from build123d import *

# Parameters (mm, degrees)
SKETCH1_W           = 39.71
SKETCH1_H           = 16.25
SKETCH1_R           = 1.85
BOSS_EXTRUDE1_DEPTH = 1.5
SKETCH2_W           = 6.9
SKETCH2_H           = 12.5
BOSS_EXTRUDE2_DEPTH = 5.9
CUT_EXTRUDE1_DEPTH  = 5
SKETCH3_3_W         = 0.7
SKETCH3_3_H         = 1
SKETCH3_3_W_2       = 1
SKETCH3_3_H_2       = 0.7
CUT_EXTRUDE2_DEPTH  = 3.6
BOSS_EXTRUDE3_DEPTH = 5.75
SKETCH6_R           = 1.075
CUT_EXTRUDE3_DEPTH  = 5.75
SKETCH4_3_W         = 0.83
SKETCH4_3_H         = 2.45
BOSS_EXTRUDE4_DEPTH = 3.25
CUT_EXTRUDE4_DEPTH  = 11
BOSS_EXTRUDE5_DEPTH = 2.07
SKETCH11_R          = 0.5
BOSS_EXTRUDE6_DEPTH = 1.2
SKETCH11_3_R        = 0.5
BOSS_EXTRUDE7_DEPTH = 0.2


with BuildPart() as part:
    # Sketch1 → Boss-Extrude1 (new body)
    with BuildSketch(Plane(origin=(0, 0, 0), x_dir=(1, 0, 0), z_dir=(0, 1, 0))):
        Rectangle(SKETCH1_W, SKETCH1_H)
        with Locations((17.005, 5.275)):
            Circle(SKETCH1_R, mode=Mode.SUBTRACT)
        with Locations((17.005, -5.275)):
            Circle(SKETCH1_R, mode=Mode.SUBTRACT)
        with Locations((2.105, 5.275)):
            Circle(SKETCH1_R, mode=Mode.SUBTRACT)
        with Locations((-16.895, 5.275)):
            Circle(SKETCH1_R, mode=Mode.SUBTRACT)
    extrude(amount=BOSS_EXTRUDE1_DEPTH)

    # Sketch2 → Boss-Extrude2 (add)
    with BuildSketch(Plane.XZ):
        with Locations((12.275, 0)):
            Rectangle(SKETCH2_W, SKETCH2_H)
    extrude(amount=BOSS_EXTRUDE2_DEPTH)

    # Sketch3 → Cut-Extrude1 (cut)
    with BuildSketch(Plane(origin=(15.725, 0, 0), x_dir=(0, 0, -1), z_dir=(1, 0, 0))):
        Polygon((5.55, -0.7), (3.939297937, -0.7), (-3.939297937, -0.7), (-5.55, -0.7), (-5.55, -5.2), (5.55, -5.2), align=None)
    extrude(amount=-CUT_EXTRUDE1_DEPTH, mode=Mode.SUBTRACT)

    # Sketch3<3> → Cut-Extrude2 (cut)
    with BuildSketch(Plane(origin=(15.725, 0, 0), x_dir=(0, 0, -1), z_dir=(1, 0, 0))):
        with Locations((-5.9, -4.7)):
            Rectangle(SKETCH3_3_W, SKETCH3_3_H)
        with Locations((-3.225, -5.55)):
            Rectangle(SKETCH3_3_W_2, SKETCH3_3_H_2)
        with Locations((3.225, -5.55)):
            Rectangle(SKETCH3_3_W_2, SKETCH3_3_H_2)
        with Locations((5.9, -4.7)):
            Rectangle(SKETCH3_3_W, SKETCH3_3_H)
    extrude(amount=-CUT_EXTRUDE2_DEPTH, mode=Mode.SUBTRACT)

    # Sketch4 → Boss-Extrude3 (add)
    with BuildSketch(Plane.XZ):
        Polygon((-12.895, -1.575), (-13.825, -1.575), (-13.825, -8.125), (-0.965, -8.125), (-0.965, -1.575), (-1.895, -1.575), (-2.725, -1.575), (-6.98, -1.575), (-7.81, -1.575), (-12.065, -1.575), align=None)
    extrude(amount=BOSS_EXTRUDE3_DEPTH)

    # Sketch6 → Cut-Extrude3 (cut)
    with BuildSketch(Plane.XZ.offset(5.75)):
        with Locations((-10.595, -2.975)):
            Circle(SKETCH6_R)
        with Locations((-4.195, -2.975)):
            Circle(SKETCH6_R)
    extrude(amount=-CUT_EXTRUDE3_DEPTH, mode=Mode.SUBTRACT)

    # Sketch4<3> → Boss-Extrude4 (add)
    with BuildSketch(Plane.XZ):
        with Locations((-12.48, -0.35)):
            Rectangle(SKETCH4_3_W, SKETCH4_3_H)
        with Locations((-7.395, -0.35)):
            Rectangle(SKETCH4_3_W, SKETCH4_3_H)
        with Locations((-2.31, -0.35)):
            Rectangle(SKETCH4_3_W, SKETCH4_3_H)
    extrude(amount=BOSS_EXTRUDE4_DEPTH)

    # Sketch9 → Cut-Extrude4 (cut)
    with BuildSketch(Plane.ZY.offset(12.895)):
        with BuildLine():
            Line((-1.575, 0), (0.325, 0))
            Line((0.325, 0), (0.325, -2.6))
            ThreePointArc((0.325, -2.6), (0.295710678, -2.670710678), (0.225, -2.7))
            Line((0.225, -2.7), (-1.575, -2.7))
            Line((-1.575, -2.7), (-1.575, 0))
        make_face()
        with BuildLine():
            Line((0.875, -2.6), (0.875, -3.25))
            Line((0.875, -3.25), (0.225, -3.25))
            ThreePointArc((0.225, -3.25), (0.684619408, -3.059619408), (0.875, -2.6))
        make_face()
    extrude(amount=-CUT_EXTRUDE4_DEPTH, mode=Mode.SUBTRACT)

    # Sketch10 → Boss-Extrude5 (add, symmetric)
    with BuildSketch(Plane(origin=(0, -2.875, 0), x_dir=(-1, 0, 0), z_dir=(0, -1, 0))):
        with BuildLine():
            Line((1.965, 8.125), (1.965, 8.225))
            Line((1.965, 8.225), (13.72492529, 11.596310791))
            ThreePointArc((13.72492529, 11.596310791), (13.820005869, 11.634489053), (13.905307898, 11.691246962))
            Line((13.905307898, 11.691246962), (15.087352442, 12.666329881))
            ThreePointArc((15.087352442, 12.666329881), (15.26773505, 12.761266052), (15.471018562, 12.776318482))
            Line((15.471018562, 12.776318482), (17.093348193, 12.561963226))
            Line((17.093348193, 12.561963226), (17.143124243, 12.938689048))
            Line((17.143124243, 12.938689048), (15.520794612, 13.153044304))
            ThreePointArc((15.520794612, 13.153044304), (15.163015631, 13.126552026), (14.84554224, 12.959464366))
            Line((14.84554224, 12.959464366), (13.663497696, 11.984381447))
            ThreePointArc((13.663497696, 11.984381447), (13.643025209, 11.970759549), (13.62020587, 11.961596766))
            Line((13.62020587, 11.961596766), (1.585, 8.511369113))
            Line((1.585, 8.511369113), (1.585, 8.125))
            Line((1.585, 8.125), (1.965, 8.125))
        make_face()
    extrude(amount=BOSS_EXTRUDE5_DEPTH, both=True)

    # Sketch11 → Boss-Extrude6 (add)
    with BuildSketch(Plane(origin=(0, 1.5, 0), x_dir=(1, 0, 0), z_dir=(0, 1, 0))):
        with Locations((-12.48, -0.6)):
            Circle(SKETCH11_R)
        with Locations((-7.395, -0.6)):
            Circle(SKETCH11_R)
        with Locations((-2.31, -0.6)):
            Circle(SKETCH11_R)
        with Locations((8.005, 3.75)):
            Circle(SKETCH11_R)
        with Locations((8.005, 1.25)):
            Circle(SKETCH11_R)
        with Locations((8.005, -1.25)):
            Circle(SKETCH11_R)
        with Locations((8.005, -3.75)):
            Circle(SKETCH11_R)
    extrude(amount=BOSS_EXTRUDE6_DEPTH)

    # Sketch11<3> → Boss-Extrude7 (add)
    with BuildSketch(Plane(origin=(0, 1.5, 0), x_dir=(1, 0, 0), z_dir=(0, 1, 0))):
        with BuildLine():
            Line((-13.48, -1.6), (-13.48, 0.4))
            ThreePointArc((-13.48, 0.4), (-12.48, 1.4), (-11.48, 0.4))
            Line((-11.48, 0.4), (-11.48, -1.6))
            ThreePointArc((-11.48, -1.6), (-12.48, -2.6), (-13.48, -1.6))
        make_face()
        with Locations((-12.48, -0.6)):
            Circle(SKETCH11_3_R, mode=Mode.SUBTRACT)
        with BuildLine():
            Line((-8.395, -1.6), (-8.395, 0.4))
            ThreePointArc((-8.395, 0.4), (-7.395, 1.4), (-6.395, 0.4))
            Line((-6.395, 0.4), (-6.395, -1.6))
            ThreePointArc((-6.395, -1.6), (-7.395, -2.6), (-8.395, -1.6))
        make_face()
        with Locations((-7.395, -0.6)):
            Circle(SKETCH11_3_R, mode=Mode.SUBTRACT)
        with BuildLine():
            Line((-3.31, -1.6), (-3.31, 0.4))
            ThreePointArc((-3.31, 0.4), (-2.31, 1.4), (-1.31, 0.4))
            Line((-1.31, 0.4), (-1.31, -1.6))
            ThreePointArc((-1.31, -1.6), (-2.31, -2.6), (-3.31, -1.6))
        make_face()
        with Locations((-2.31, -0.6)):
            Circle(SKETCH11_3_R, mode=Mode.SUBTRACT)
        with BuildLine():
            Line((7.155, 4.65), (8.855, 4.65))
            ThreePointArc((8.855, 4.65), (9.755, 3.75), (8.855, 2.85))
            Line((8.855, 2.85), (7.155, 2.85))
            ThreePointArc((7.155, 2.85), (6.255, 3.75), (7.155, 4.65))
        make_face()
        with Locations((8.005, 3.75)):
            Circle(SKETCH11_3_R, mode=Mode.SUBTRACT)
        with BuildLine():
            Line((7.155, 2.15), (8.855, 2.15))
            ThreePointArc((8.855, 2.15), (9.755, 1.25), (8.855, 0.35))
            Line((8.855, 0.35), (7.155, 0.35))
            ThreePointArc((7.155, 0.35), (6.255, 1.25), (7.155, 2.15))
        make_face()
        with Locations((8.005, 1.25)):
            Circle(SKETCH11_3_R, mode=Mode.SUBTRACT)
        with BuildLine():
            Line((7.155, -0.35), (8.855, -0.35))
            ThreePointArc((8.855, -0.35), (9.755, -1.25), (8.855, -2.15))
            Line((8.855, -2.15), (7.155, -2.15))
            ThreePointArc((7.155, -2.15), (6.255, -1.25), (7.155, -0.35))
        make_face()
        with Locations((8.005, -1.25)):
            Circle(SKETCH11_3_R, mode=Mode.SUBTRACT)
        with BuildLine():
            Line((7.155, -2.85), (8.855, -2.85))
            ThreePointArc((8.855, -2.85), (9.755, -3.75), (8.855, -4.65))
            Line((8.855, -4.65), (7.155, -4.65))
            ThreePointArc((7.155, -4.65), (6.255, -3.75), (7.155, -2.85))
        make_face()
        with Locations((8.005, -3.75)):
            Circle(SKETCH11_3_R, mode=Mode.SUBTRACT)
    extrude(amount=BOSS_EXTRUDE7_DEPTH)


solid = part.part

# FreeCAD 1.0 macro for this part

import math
import FreeCAD as App
import Part
import Sketcher
from FreeCAD import Vector
Q = App.Units.Quantity

doc = App.newDocument("Part")
body = doc.addObject("PartDesign::Body", "Body")

sketch1 = doc.addObject("Sketcher::SketchObject", "Sketch")
body.addObject(sketch1)
sketch1.AttachmentSupport = (doc.XZ_Plane, [""])
sketch1.MapMode = "FlatFace"
sketch1.addGeometry(Part.LineSegment(Vector(-19.855, -8.125, 0), Vector(-19.855, 8.125, 0)), False)
sketch1.addGeometry(Part.LineSegment(Vector(-19.855, 8.125, 0), Vector(19.855, 8.125, 0)), False)
sketch1.addGeometry(Part.LineSegment(Vector(19.855, 8.125, 0), Vector(19.855, -8.125, 0)), False)
sketch1.addGeometry(Part.LineSegment(Vector(19.855, -8.125, 0), Vector(-19.855, -8.125, 0)), False)
sketch1.addGeometry(Part.Circle(Vector(17.005, 5.275, 0), Vector(0, 0, 1), 1.85), False)
sketch1.addGeometry(Part.Circle(Vector(-16.895, -5.275, 0), Vector(0, 0, 1), 1.85), False)
sketch1.addGeometry(Part.Circle(Vector(2.105, -5.275, 0), Vector(0, 0, 1), 1.85), False)
sketch1.addGeometry(Part.Circle(Vector(17.005, -5.275, 0), Vector(0, 0, 1), 1.85), False)
sketch1.addConstraint(Sketcher.Constraint("Coincident", 0, 2, 1, 1))
sketch1.addConstraint(Sketcher.Constraint("Coincident", 1, 2, 2, 1))
sketch1.addConstraint(Sketcher.Constraint("Coincident", 2, 2, 3, 1))
sketch1.addConstraint(Sketcher.Constraint("Coincident", 3, 2, 0, 1))
sketch1.addConstraint(Sketcher.Constraint("Vertical", 0))
sketch1.addConstraint(Sketcher.Constraint("Horizontal", 1))
sketch1.addConstraint(Sketcher.Constraint("Vertical", 2))
sketch1.addConstraint(Sketcher.Constraint("Horizontal", 3))
sketch1.addConstraint(Sketcher.Constraint("Equal", 4, 5))
sketch1.addConstraint(Sketcher.Constraint("Equal", 5, 6))
sketch1.addConstraint(Sketcher.Constraint("Equal", 6, 7))
sketch1.addConstraint(Sketcher.Constraint("Symmetric", 0, 2, 2, 2, -1, 1))
sketch1.addConstraint(Sketcher.Constraint("Symmetric", 4, 3, 7, 3, -1))
sketch1.addConstraint(Sketcher.Constraint("Horizontal", 5, 3, 6, 3))
sketch1.addConstraint(Sketcher.Constraint("Horizontal", 6, 3, 7, 3))
sketch1.addConstraint(Sketcher.Constraint("Diameter", 4, Q("3.7 mm")))
sketch1.addConstraint(Sketcher.Constraint("DistanceX", 5, 3, 6, 3, Q("19 mm")))
sketch1.addConstraint(Sketcher.Constraint("DistanceX", 1, 1, 1, 2, Q("39.71 mm")))
sketch1.addConstraint(Sketcher.Constraint("DistanceY", 0, 1, 0, 2, Q("16.25 mm")))
sketch1.addConstraint(Sketcher.Constraint("DistanceX", 5, 3, 4, 3, Q("33.9 mm")))
sketch1.addConstraint(Sketcher.Constraint("DistanceY", 5, 3, 0, 2, Q("13.4 mm")))
sketch1.addConstraint(Sketcher.Constraint("DistanceX", 0, 2, 5, 3, Q("2.96 mm")))
pad1 = doc.addObject("PartDesign::Pad", "Pad")
body.addObject(pad1)
pad1.Profile = sketch1
pad1.Length = 1.5
pad1.Reversed = True

sketch2 = doc.addObject("Sketcher::SketchObject", "Sketch001")
body.addObject(sketch2)
sketch2.AttachmentSupport = (doc.XZ_Plane, [""])
sketch2.MapMode = "FlatFace"
sketch2.addGeometry(Part.LineSegment(Vector(8.825, 6.25, 0), Vector(8.825, -6.25, 0)), False)
sketch2.addGeometry(Part.LineSegment(Vector(8.825, -6.25, 0), Vector(15.725, -6.25, 0)), False)
sketch2.addGeometry(Part.LineSegment(Vector(15.725, -6.25, 0), Vector(15.725, 6.25, 0)), False)
sketch2.addGeometry(Part.LineSegment(Vector(15.725, 6.25, 0), Vector(8.825, 6.25, 0)), False)
sketch2.addConstraint(Sketcher.Constraint("Coincident", 0, 2, 1, 1))
sketch2.addConstraint(Sketcher.Constraint("Coincident", 1, 2, 2, 1))
sketch2.addConstraint(Sketcher.Constraint("Coincident", 2, 2, 3, 1))
sketch2.addConstraint(Sketcher.Constraint("Coincident", 3, 2, 0, 1))
sketch2.addConstraint(Sketcher.Constraint("Vertical", 0))
sketch2.addConstraint(Sketcher.Constraint("Horizontal", 1))
sketch2.addConstraint(Sketcher.Constraint("Vertical", 2))
sketch2.addConstraint(Sketcher.Constraint("Horizontal", 3))
sketch2.addConstraint(Sketcher.Constraint("DistanceX", 1, 1, 1, 2, Q("6.9 mm")))
sketch2.addConstraint(Sketcher.Constraint("DistanceY", 0, 2, 0, 1, Q("12.5 mm")))
sketch2.addConstraint(Sketcher.Constraint("DistanceY", 0, 2, -1, 1, Q("6.25 mm")))
sketch2.addConstraint(Sketcher.Constraint("DistanceX", -1, 1, 0, 2, Q("8.825 mm")))
pad2 = doc.addObject("PartDesign::Pad", "Pad001")
body.addObject(pad2)
pad2.Profile = sketch2
pad2.Length = 5.9

sketch3 = doc.addObject("Sketcher::SketchObject", "Sketch002")
body.addObject(sketch3)
sketch3.AttachmentSupport = (doc.YZ_Plane, [""])
sketch3.MapMode = "FlatFace"
sketch3.AttachmentOffset = App.Placement(Vector(0, 0, 15.725), App.Rotation())
sketch3.addGeometry(Part.LineSegment(Vector(-0.7, -5.55, 0), Vector(-0.7, 5.55, 0)), False)
sketch3.addGeometry(Part.LineSegment(Vector(-0.7, 5.55, 0), Vector(-5.2, 5.55, 0)), False)
sketch3.addGeometry(Part.LineSegment(Vector(-5.2, 5.55, 0), Vector(-5.2, -5.55, 0)), False)
sketch3.addGeometry(Part.LineSegment(Vector(-5.2, -5.55, 0), Vector(-0.7, -5.55, 0)), False)
sketch3.addConstraint(Sketcher.Constraint("Coincident", 0, 2, 1, 1))
sketch3.addConstraint(Sketcher.Constraint("Coincident", 1, 2, 2, 1))
sketch3.addConstraint(Sketcher.Constraint("Coincident", 2, 2, 3, 1))
sketch3.addConstraint(Sketcher.Constraint("Coincident", 3, 2, 0, 1))
sketch3.addConstraint(Sketcher.Constraint("Vertical", 0))
sketch3.addConstraint(Sketcher.Constraint("Horizontal", 1))
sketch3.addConstraint(Sketcher.Constraint("Vertical", 2))
sketch3.addConstraint(Sketcher.Constraint("Horizontal", 3))
sketch3.addConstraint(Sketcher.Constraint("DistanceX", 1, 2, 1, 1, Q("4.5 mm")))
sketch3.addConstraint(Sketcher.Constraint("DistanceY", 0, 1, 0, 2, Q("11.1 mm")))
sketch3.addConstraint(Sketcher.Constraint("DistanceX", 0, 2, -1, 1, Q("0.7 mm")))
sketch3.addConstraint(Sketcher.Constraint("DistanceY", -1, 1, 0, 2, Q("5.55 mm")))
pocket1 = doc.addObject("PartDesign::Pocket", "Pocket")
body.addObject(pocket1)
pocket1.Profile = sketch3
pocket1.Length = 5

sketch4 = doc.addObject("Sketcher::SketchObject", "Sketch003")
body.addObject(sketch4)
sketch4.AttachmentSupport = (doc.YZ_Plane, [""])
sketch4.MapMode = "FlatFace"
sketch4.AttachmentOffset = App.Placement(Vector(0, 0, 15.725), App.Rotation())
sketch4.addGeometry(Part.LineSegment(Vector(-4.2, 6.25, 0), Vector(-5.2, 6.25, 0)), False)
sketch4.addGeometry(Part.LineSegment(Vector(-5.2, 6.25, 0), Vector(-5.2, 5.55, 0)), False)
sketch4.addGeometry(Part.LineSegment(Vector(-5.2, 5.55, 0), Vector(-4.2, 5.55, 0)), False)
sketch4.addGeometry(Part.LineSegment(Vector(-4.2, 5.55, 0), Vector(-4.2, 6.25, 0)), False)
sketch4.addGeometry(Part.LineSegment(Vector(-5.2, 3.725, 0), Vector(-5.9, 3.725, 0)), False)
sketch4.addGeometry(Part.LineSegment(Vector(-5.9, 3.725, 0), Vector(-5.9, 2.725, 0)), False)
sketch4.addGeometry(Part.LineSegment(Vector(-5.9, 2.725, 0), Vector(-5.2, 2.725, 0)), False)
sketch4.addGeometry(Part.LineSegment(Vector(-5.2, 2.725, 0), Vector(-5.2, 3.725, 0)), False)
sketch4.addGeometry(Part.LineSegment(Vector(-5.2, -2.725, 0), Vector(-5.9, -2.725, 0)), False)
sketch4.addGeometry(Part.LineSegment(Vector(-5.9, -2.725, 0), Vector(-5.9, -3.725, 0)), False)
sketch4.addGeometry(Part.LineSegment(Vector(-5.9, -3.725, 0), Vector(-5.2, -3.725, 0)), False)
sketch4.addGeometry(Part.LineSegment(Vector(-5.2, -3.725, 0), Vector(-5.2, -2.725, 0)), False)
sketch4.addGeometry(Part.LineSegment(Vector(-4.2, -5.55, 0), Vector(-5.2, -5.55, 0)), False)
sketch4.addGeometry(Part.LineSegment(Vector(-5.2, -5.55, 0), Vector(-5.2, -6.25, 0)), False)
sketch4.addGeometry(Part.LineSegment(Vector(-5.2, -6.25, 0), Vector(-4.2, -6.25, 0)), False)
sketch4.addGeometry(Part.LineSegment(Vector(-4.2, -6.25, 0), Vector(-4.2, -5.55, 0)), False)
sketch4.addConstraint(Sketcher.Constraint("Coincident", 0, 2, 1, 1))
sketch4.addConstraint(Sketcher.Constraint("Coincident", 1, 2, 2, 1))
sketch4.addConstraint(Sketcher.Constraint("Coincident", 2, 2, 3, 1))
sketch4.addConstraint(Sketcher.Constraint("Coincident", 3, 2, 0, 1))
sketch4.addConstraint(Sketcher.Constraint("Coincident", 4, 2, 5, 1))
sketch4.addConstraint(Sketcher.Constraint("Coincident", 5, 2, 6, 1))
sketch4.addConstraint(Sketcher.Constraint("Coincident", 6, 2, 7, 1))
sketch4.addConstraint(Sketcher.Constraint("Coincident", 7, 2, 4, 1))
sketch4.addConstraint(Sketcher.Constraint("Coincident", 8, 2, 9, 1))
sketch4.addConstraint(Sketcher.Constraint("Coincident", 9, 2, 10, 1))
sketch4.addConstraint(Sketcher.Constraint("Coincident", 10, 2, 11, 1))
sketch4.addConstraint(Sketcher.Constraint("Coincident", 11, 2, 8, 1))
sketch4.addConstraint(Sketcher.Constraint("Coincident", 12, 2, 13, 1))
sketch4.addConstraint(Sketcher.Constraint("Coincident", 13, 2, 14, 1))
sketch4.addConstraint(Sketcher.Constraint("Coincident", 14, 2, 15, 1))
sketch4.addConstraint(Sketcher.Constraint("Coincident", 15, 2, 12, 1))
sketch4.addConstraint(Sketcher.Constraint("Horizontal", 0))
sketch4.addConstraint(Sketcher.Constraint("Vertical", 1))
sketch4.addConstraint(Sketcher.Constraint("Horizontal", 2))
sketch4.addConstraint(Sketcher.Constraint("Vertical", 3))
sketch4.addConstraint(Sketcher.Constraint("Horizontal", 4))
sketch4.addConstraint(Sketcher.Constraint("Vertical", 5))
sketch4.addConstraint(Sketcher.Constraint("Horizontal", 6))
sketch4.addConstraint(Sketcher.Constraint("Vertical", 7))
sketch4.addConstraint(Sketcher.Constraint("Horizontal", 8))
sketch4.addConstraint(Sketcher.Constraint("Vertical", 9))
sketch4.addConstraint(Sketcher.Constraint("Horizontal", 10))
sketch4.addConstraint(Sketcher.Constraint("Vertical", 11))
sketch4.addConstraint(Sketcher.Constraint("Horizontal", 12))
sketch4.addConstraint(Sketcher.Constraint("Vertical", 13))
sketch4.addConstraint(Sketcher.Constraint("Horizontal", 14))
sketch4.addConstraint(Sketcher.Constraint("Vertical", 15))
sketch4.addConstraint(Sketcher.Constraint("Symmetric", 5, 2, 8, 2, -1))
sketch4.addConstraint(Sketcher.Constraint("Symmetric", 7, 2, 10, 2, -1))
sketch4.addConstraint(Sketcher.Constraint("Symmetric", 1, 2, 12, 2, -1))
sketch4.addConstraint(Sketcher.Constraint("Symmetric", 3, 2, 14, 2, -1))
sketch4.addConstraint(Sketcher.Constraint("Vertical", 1, 2, 6, 2))
sketch4.addConstraint(Sketcher.Constraint("Equal", 10, 1))
sketch4.addConstraint(Sketcher.Constraint("Equal", 14, 5))
sketch4.addConstraint(Sketcher.Constraint("DistanceX", 0, 2, 0, 1, Q("1 mm")))
sketch4.addConstraint(Sketcher.Constraint("DistanceX", 4, 2, 4, 1, Q("0.7 mm")))
sketch4.addConstraint(Sketcher.Constraint("DistanceX", 0, 2, -1, 1, Q("5.2 mm")))
sketch4.addConstraint(Sketcher.Constraint("DistanceY", -1, 1, 0, 2, Q("6.25 mm")))
sketch4.addConstraint(Sketcher.Constraint("DistanceY", 8, 2, 5, 2, Q("5.45 mm")))
pocket2 = doc.addObject("PartDesign::Pocket", "Pocket001")
body.addObject(pocket2)
pocket2.Profile = sketch4
pocket2.Length = 3.6

sketch5 = doc.addObject("Sketcher::SketchObject", "Sketch004")
body.addObject(sketch5)
sketch5.AttachmentSupport = (doc.XZ_Plane, [""])
sketch5.MapMode = "FlatFace"
sketch5.addGeometry(Part.LineSegment(Vector(-13.825, -1.575, 0), Vector(-13.825, -8.125, 0)), False)
sketch5.addGeometry(Part.LineSegment(Vector(-13.825, -8.125, 0), Vector(-0.965, -8.125, 0)), False)
sketch5.addGeometry(Part.LineSegment(Vector(-0.965, -8.125, 0), Vector(-0.965, -1.575, 0)), False)
sketch5.addGeometry(Part.LineSegment(Vector(-0.965, -1.575, 0), Vector(-13.825, -1.575, 0)), False)
sketch5.addConstraint(Sketcher.Constraint("Coincident", 0, 2, 1, 1))
sketch5.addConstraint(Sketcher.Constraint("Coincident", 1, 2, 2, 1))
sketch5.addConstraint(Sketcher.Constraint("Coincident", 2, 2, 3, 1))
sketch5.addConstraint(Sketcher.Constraint("Coincident", 3, 2, 0, 1))
sketch5.addConstraint(Sketcher.Constraint("Vertical", 0))
sketch5.addConstraint(Sketcher.Constraint("Horizontal", 1))
sketch5.addConstraint(Sketcher.Constraint("Vertical", 2))
sketch5.addConstraint(Sketcher.Constraint("Horizontal", 3))
sketch5.addConstraint(Sketcher.Constraint("DistanceX", 1, 1, 1, 2, Q("12.86 mm")))
sketch5.addConstraint(Sketcher.Constraint("DistanceY", 0, 2, 0, 1, Q("6.55 mm")))
sketch5.addConstraint(Sketcher.Constraint("DistanceX", 0, 2, -1, 1, Q("13.825 mm")))
sketch5.addConstraint(Sketcher.Constraint("DistanceY", 0, 2, -1, 1, Q("8.125 mm")))
pad3 = doc.addObject("PartDesign::Pad", "Pad002")
body.addObject(pad3)
pad3.Profile = sketch5
pad3.Length = 5.75

sketch6 = doc.addObject("Sketcher::SketchObject", "Sketch005")
body.addObject(sketch6)
sketch6.AttachmentSupport = (doc.XZ_Plane, [""])
sketch6.MapMode = "FlatFace"
sketch6.AttachmentOffset = App.Placement(Vector(0, 0, 5.75), App.Rotation())
sketch6.addGeometry(Part.Circle(Vector(-10.595, -2.975, 0), Vector(0, 0, 1), 1.075), False)
sketch6.addGeometry(Part.Circle(Vector(-4.195, -2.975, 0), Vector(0, 0, 1), 1.075), False)
sketch6.addConstraint(Sketcher.Constraint("Equal", 0, 1))
sketch6.addConstraint(Sketcher.Constraint("Horizontal", 0, 3, 1, 3))
sketch6.addConstraint(Sketcher.Constraint("Diameter", 0, Q("2.15 mm")))
sketch6.addConstraint(Sketcher.Constraint("DistanceX", 0, 3, 1, 3, Q("6.4 mm")))
sketch6.addConstraint(Sketcher.Constraint("DistanceX", 0, 3, -1, 1, Q("10.595 mm")))
sketch6.addConstraint(Sketcher.Constraint("DistanceY", 0, 3, -1, 1, Q("2.975 mm")))
pocket3 = doc.addObject("PartDesign::Pocket", "Pocket002")
body.addObject(pocket3)
pocket3.Profile = sketch6
pocket3.Length = 5.75

sketch7 = doc.addObject("Sketcher::SketchObject", "Sketch006")
body.addObject(sketch7)
sketch7.AttachmentSupport = (doc.XZ_Plane, [""])
sketch7.MapMode = "FlatFace"
sketch7.addGeometry(Part.LineSegment(Vector(-12.895, 0.875, 0), Vector(-12.895, -1.575, 0)), False)
sketch7.addGeometry(Part.LineSegment(Vector(-12.895, -1.575, 0), Vector(-12.065, -1.575, 0)), False)
sketch7.addGeometry(Part.LineSegment(Vector(-12.065, -1.575, 0), Vector(-12.065, 0.875, 0)), False)
sketch7.addGeometry(Part.LineSegment(Vector(-12.065, 0.875, 0), Vector(-12.895, 0.875, 0)), False)
sketch7.addGeometry(Part.LineSegment(Vector(-7.81, 0.875, 0), Vector(-7.81, -1.575, 0)), False)
sketch7.addGeometry(Part.LineSegment(Vector(-7.81, -1.575, 0), Vector(-6.98, -1.575, 0)), False)
sketch7.addGeometry(Part.LineSegment(Vector(-6.98, -1.575, 0), Vector(-6.98, 0.875, 0)), False)
sketch7.addGeometry(Part.LineSegment(Vector(-6.98, 0.875, 0), Vector(-7.81, 0.875, 0)), False)
sketch7.addGeometry(Part.LineSegment(Vector(-2.725, 0.875, 0), Vector(-2.725, -1.575, 0)), False)
sketch7.addGeometry(Part.LineSegment(Vector(-2.725, -1.575, 0), Vector(-1.895, -1.575, 0)), False)
sketch7.addGeometry(Part.LineSegment(Vector(-1.895, -1.575, 0), Vector(-1.895, 0.875, 0)), False)
sketch7.addGeometry(Part.LineSegment(Vector(-1.895, 0.875, 0), Vector(-2.725, 0.875, 0)), False)
sketch7.addConstraint(Sketcher.Constraint("Coincident", 0, 2, 1, 1))
sketch7.addConstraint(Sketcher.Constraint("Coincident", 1, 2, 2, 1))
sketch7.addConstraint(Sketcher.Constraint("Coincident", 2, 2, 3, 1))
sketch7.addConstraint(Sketcher.Constraint("Coincident", 3, 2, 0, 1))
sketch7.addConstraint(Sketcher.Constraint("Coincident", 4, 2, 5, 1))
sketch7.addConstraint(Sketcher.Constraint("Coincident", 5, 2, 6, 1))
sketch7.addConstraint(Sketcher.Constraint("Coincident", 6, 2, 7, 1))
sketch7.addConstraint(Sketcher.Constraint("Coincident", 7, 2, 4, 1))
sketch7.addConstraint(Sketcher.Constraint("Coincident", 8, 2, 9, 1))
sketch7.addConstraint(Sketcher.Constraint("Coincident", 9, 2, 10, 1))
sketch7.addConstraint(Sketcher.Constraint("Coincident", 10, 2, 11, 1))
sketch7.addConstraint(Sketcher.Constraint("Coincident", 11, 2, 8, 1))
sketch7.addConstraint(Sketcher.Constraint("Vertical", 0))
sketch7.addConstraint(Sketcher.Constraint("Horizontal", 1))
sketch7.addConstraint(Sketcher.Constraint("Vertical", 2))
sketch7.addConstraint(Sketcher.Constraint("Horizontal", 3))
sketch7.addConstraint(Sketcher.Constraint("Vertical", 4))
sketch7.addConstraint(Sketcher.Constraint("Horizontal", 5))
sketch7.addConstraint(Sketcher.Constraint("Vertical", 6))
sketch7.addConstraint(Sketcher.Constraint("Horizontal", 7))
sketch7.addConstraint(Sketcher.Constraint("Vertical", 8))
sketch7.addConstraint(Sketcher.Constraint("Horizontal", 9))
sketch7.addConstraint(Sketcher.Constraint("Vertical", 10))
sketch7.addConstraint(Sketcher.Constraint("Horizontal", 11))
sketch7.addConstraint(Sketcher.Constraint("Horizontal", 1, 2, 4, 2))
sketch7.addConstraint(Sketcher.Constraint("Horizontal", 3, 2, 6, 2))
sketch7.addConstraint(Sketcher.Constraint("Horizontal", 5, 2, 8, 2))
sketch7.addConstraint(Sketcher.Constraint("Horizontal", 7, 2, 10, 2))
sketch7.addConstraint(Sketcher.Constraint("Equal", 3, 5))
sketch7.addConstraint(Sketcher.Constraint("Equal", 7, 9))
sketch7.addConstraint(Sketcher.Constraint("DistanceX", 1, 1, 1, 2, Q("0.83 mm")))
sketch7.addConstraint(Sketcher.Constraint("DistanceY", 0, 2, 0, 1, Q("2.45 mm")))
sketch7.addConstraint(Sketcher.Constraint("DistanceX", 4, 2, -1, 1, Q("7.81 mm")))
sketch7.addConstraint(Sketcher.Constraint("DistanceX", 1, 2, 8, 2, Q("9.34 mm")))
sketch7.addConstraint(Sketcher.Constraint("DistanceX", 0, 2, -1, 1, Q("12.895 mm")))
sketch7.addConstraint(Sketcher.Constraint("DistanceY", 0, 2, -1, 1, Q("1.575 mm")))
pad4 = doc.addObject("PartDesign::Pad", "Pad003")
body.addObject(pad4)
pad4.Profile = sketch7
pad4.Length = 3.25

sketch8 = doc.addObject("Sketcher::SketchObject", "Sketch007")
body.addObject(sketch8)
sketch8.AttachmentSupport = (doc.YZ_Plane, [""])
sketch8.MapMode = "FlatFace"
sketch8.AttachmentOffset = App.Placement(Vector(0, 0, -12.895), App.Rotation())
sketch8.addGeometry(Part.LineSegment(Vector(0, 0.325, 0), Vector(0, -1.575, 0)), False)
sketch8.addGeometry(Part.LineSegment(Vector(0, -1.575, 0), Vector(-2.7, -1.575, 0)), False)
sketch8.addGeometry(Part.LineSegment(Vector(-2.7, -1.575, 0), Vector(-2.7, 0.225, 0)), False)
sketch8.addGeometry(Part.ArcOfCircle(Part.Circle(Vector(-2.6, 0.225, 0), Vector(0, 0, 1), 0.1), math.radians(90), math.radians(180)), False)
sketch8.addGeometry(Part.LineSegment(Vector(-2.6, 0.325, 0), Vector(0, 0.325, 0)), False)
sketch8.addGeometry(Part.LineSegment(Vector(-3.25, 0.875, 0), Vector(-2.6, 0.875, 0)), False)
sketch8.addGeometry(Part.ArcOfCircle(Part.Circle(Vector(-2.6, 0.225, 0), Vector(0, 0, 1), 0.65), math.radians(90), math.radians(180)), False)
sketch8.addGeometry(Part.LineSegment(Vector(-3.25, 0.225, 0), Vector(-3.25, 0.875, 0)), False)
sketch8.addConstraint(Sketcher.Constraint("Coincident", 0, 2, 1, 1))
sketch8.addConstraint(Sketcher.Constraint("Coincident", 1, 2, 2, 1))
sketch8.addConstraint(Sketcher.Constraint("Tangent", 2, 2, 3, 2))
sketch8.addConstraint(Sketcher.Constraint("Tangent", 3, 1, 4, 1))
sketch8.addConstraint(Sketcher.Constraint("Coincident", 4, 2, 0, 1))
sketch8.addConstraint(Sketcher.Constraint("Tangent", 5, 2, 6, 1))
sketch8.addConstraint(Sketcher.Constraint("Tangent", 6, 2, 7, 1))
sketch8.addConstraint(Sketcher.Constraint("Coincident", 7, 2, 5, 1))
sketch8.addConstraint(Sketcher.Constraint("Vertical", 0))
sketch8.addConstraint(Sketcher.Constraint("Horizontal", 1))
sketch8.addConstraint(Sketcher.Constraint("Vertical", 2))
sketch8.addConstraint(Sketcher.Constraint("Horizontal", 4))
sketch8.addConstraint(Sketcher.Constraint("Horizontal", 5))
sketch8.addConstraint(Sketcher.Constraint("Vertical", 7))
sketch8.addConstraint(Sketcher.Constraint("Coincident", 6, 3, 3, 3))
sketch8.addConstraint(Sketcher.Constraint("PointOnObject", 0, 2, -2))
sketch8.addConstraint(Sketcher.Constraint("Radius", 3, Q("0.1 mm")))
sketch8.addConstraint(Sketcher.Constraint("Radius", 6, Q("0.65 mm")))
sketch8.addConstraint(Sketcher.Constraint("DistanceX", 1, 2, 1, 1, Q("2.7 mm")))
sketch8.addConstraint(Sketcher.Constraint("DistanceY", 0, 2, 0, 1, Q("1.9 mm")))
sketch8.addConstraint(Sketcher.Constraint("DistanceY", -1, 1, 3, 3, Q("0.225 mm")))
pocket4 = doc.addObject("PartDesign::Pocket", "Pocket003")
body.addObject(pocket4)
pocket4.Profile = sketch8
pocket4.Length = 11
pocket4.Reversed = True

sketch9 = doc.addObject("Sketcher::SketchObject", "Sketch008")
body.addObject(sketch9)
sketch9.AttachmentSupport = (doc.XZ_Plane, [""])
sketch9.MapMode = "FlatFace"
sketch9.AttachmentOffset = App.Placement(Vector(0, 0, 2.875), App.Rotation())
sketch9.addGeometry(Part.LineSegment(Vector(-1.965, -8.125, 0), Vector(-1.965, -8.225, 0)), False)
sketch9.addGeometry(Part.LineSegment(Vector(-1.965, -8.225, 0), Vector(-13.724925, -11.596311, 0)), False)
sketch9.addGeometry(Part.ArcOfCircle(Part.Circle(Vector(-13.587137, -12.07695, 0), Vector(0, 0, 1), 0.5), math.radians(105.996428), math.radians(129.519637)), False)
sketch9.addGeometry(Part.LineSegment(Vector(-13.905308, -11.691247, 0), Vector(-15.087352, -12.66633, 0)), False)
sketch9.addGeometry(Part.ArcOfCircle(Part.Circle(Vector(-15.405524, -12.280627, 0), Vector(0, 0, 1), 0.5), math.radians(-97.526782), math.radians(-50.480363)), False)
sketch9.addGeometry(Part.LineSegment(Vector(-15.471019, -12.776318, 0), Vector(-17.093348, -12.561963, 0)), False)
sketch9.addGeometry(Part.LineSegment(Vector(-17.093348, -12.561963, 0), Vector(-17.143124, -12.938689, 0)), False)
sketch9.addGeometry(Part.LineSegment(Vector(-17.143124, -12.938689, 0), Vector(-15.520795, -13.153044, 0)), False)
sketch9.addGeometry(Part.ArcOfCircle(Part.Circle(Vector(-15.405524, -12.280627, 0), Vector(0, 0, 1), 0.88), math.radians(-97.526782), math.radians(-50.480363)), False)
sketch9.addGeometry(Part.LineSegment(Vector(-14.845542, -12.959464, 0), Vector(-13.663498, -11.984381, 0)), False)
sketch9.addGeometry(Part.ArcOfCircle(Part.Circle(Vector(-13.587137, -12.07695, 0), Vector(0, 0, 1), 0.12), math.radians(105.996428), math.radians(129.519636)), False)
sketch9.addGeometry(Part.LineSegment(Vector(-13.620206, -11.961597, 0), Vector(-1.585, -8.511369, 0)), False)
sketch9.addGeometry(Part.LineSegment(Vector(-1.585, -8.511369, 0), Vector(-1.585, -8.125, 0)), False)
sketch9.addGeometry(Part.LineSegment(Vector(-1.585, -8.125, 0), Vector(-1.965, -8.125, 0)), False)
sketch9.addConstraint(Sketcher.Constraint("Coincident", 0, 2, 1, 1))
sketch9.addConstraint(Sketcher.Constraint("Tangent", 1, 2, 2, 1))
sketch9.addConstraint(Sketcher.Constraint("Tangent", 2, 2, 3, 1))
sketch9.addConstraint(Sketcher.Constraint("Tangent", 3, 2, 4, 2))
sketch9.addConstraint(Sketcher.Constraint("Tangent", 4, 1, 5, 1))
sketch9.addConstraint(Sketcher.Constraint("Coincident", 5, 2, 6, 1))
sketch9.addConstraint(Sketcher.Constraint("Coincident", 6, 2, 7, 1))
sketch9.addConstraint(Sketcher.Constraint("Tangent", 7, 2, 8, 1))
sketch9.addConstraint(Sketcher.Constraint("Tangent", 8, 2, 9, 1))
sketch9.addConstraint(Sketcher.Constraint("Tangent", 9, 2, 10, 2))
sketch9.addConstraint(Sketcher.Constraint("Tangent", 10, 1, 11, 1))
sketch9.addConstraint(Sketcher.Constraint("Coincident", 11, 2, 12, 1))
sketch9.addConstraint(Sketcher.Constraint("Coincident", 12, 2, 13, 1))
sketch9.addConstraint(Sketcher.Constraint("Coincident", 13, 2, 0, 1))
sketch9.addConstraint(Sketcher.Constraint("Vertical", 0))
sketch9.addConstraint(Sketcher.Constraint("Vertical", 12))
sketch9.addConstraint(Sketcher.Constraint("Horizontal", 13))
sketch9.addConstraint(Sketcher.Constraint("Coincident", 8, 3, 4, 3))
sketch9.addConstraint(Sketcher.Constraint("Coincident", 10, 3, 2, 3))
sketch9.addConstraint(Sketcher.Constraint("Equal", 2, 4))
sketch9.addConstraint(Sketcher.Constraint("Perpendicular", 5, 6))
sketch9.addConstraint(Sketcher.Constraint("Perpendicular", 6, 7))
sketch9.addConstraint(Sketcher.Constraint("Parallel", 3, 9))
sketch9.addConstraint(Sketcher.Constraint("Parallel", 1, 11))
sketch9.addConstraint(Sketcher.Constraint("Radius", 2, Q("0.5 mm")))
sketch9.addConstraint(Sketcher.Constraint("Radius", 8, Q("0.88 mm")))
sketch9.addConstraint(Sketcher.Constraint("DistanceY", 0, 2, 0, 1, Q("0.1 mm")))
sketch9.addConstraint(Sketcher.Constraint("DistanceX", 13, 2, 13, 1, Q("0.38 mm")))
sketch9.addConstraint(Sketcher.Constraint("DistanceX", 0, 2, -1, 1, Q("1.965 mm")))
sketch9.addConstraint(Sketcher.Constraint("DistanceY", 0, 2, -1, 1, Q("8.225 mm")))
sketch9.addConstraint(Sketcher.Constraint("DistanceY", 12, 1, 12, 2, Q("0.386369 mm")))
sketch9.addConstraint(Sketcher.Constraint("DistanceX", 8, 3, 1, 2, Q("1.680598 mm")))
sketch9.addConstraint(Sketcher.Constraint("DistanceX", 6, 2, 4, 3, Q("1.7376 mm")))
sketch9.addConstraint(Sketcher.Constraint("Distance", 5, Q("1.63643 mm")))
sketch9.addConstraint(Sketcher.Constraint("DistanceY", 2, 3, -1, 1, Q("12.07695 mm")))
sketch9.addConstraint(Sketcher.Constraint("DistanceY", 3, 2, -1, 1, Q("12.66633 mm")))
pad5 = doc.addObject("PartDesign::Pad", "Pad004")
body.addObject(pad5)
pad5.Profile = sketch9
pad5.Length = 4.14
pad5.Midplane = True

sketch10 = doc.addObject("Sketcher::SketchObject", "Sketch009")
body.addObject(sketch10)
sketch10.AttachmentSupport = (doc.XZ_Plane, [""])
sketch10.MapMode = "FlatFace"
sketch10.AttachmentOffset = App.Placement(Vector(0, 0, -1.5), App.Rotation())
sketch10.addGeometry(Part.Circle(Vector(-12.48, 0.6, 0), Vector(0, 0, 1), 0.5), False)
sketch10.addGeometry(Part.Circle(Vector(-7.395, 0.6, 0), Vector(0, 0, 1), 0.5), False)
sketch10.addGeometry(Part.Circle(Vector(-2.31, 0.6, 0), Vector(0, 0, 1), 0.5), False)
sketch10.addGeometry(Part.Circle(Vector(8.005, -3.75, 0), Vector(0, 0, 1), 0.5), False)
sketch10.addGeometry(Part.Circle(Vector(8.005, -1.25, 0), Vector(0, 0, 1), 0.5), False)
sketch10.addGeometry(Part.Circle(Vector(8.005, 1.25, 0), Vector(0, 0, 1), 0.5), False)
sketch10.addGeometry(Part.Circle(Vector(8.005, 3.75, 0), Vector(0, 0, 1), 0.5), False)
sketch10.addConstraint(Sketcher.Constraint("Equal", 0, 1))
sketch10.addConstraint(Sketcher.Constraint("Equal", 1, 2))
sketch10.addConstraint(Sketcher.Constraint("Equal", 2, 3))
sketch10.addConstraint(Sketcher.Constraint("Equal", 3, 4))
sketch10.addConstraint(Sketcher.Constraint("Equal", 4, 5))
sketch10.addConstraint(Sketcher.Constraint("Equal", 5, 6))
sketch10.addConstraint(Sketcher.Constraint("Symmetric", 4, 3, 5, 3, -1))
sketch10.addConstraint(Sketcher.Constraint("Symmetric", 3, 3, 6, 3, -1))
sketch10.addConstraint(Sketcher.Constraint("Horizontal", 0, 3, 1, 3))
sketch10.addConstraint(Sketcher.Constraint("Horizontal", 1, 3, 2, 3))
sketch10.addConstraint(Sketcher.Constraint("Vertical", 3, 3, 4, 3))
sketch10.addConstraint(Sketcher.Constraint("Diameter", 0, Q("1 mm")))
sketch10.addConstraint(Sketcher.Constraint("DistanceY", 3, 3, 5, 3, Q("5 mm")))
sketch10.addConstraint(Sketcher.Constraint("DistanceY", -1, 1, 0, 3, Q("0.6 mm")))
sketch10.addConstraint(Sketcher.Constraint("DistanceX", 1, 3, 3, 3, Q("15.4 mm")))
sketch10.addConstraint(Sketcher.Constraint("DistanceY", 3, 3, 4, 3, Q("2.5 mm")))
sketch10.addConstraint(Sketcher.Constraint("DistanceX", 0, 3, -1, 1, Q("12.48 mm")))
sketch10.addConstraint(Sketcher.Constraint("DistanceX", 2, 3, -1, 1, Q("2.31 mm")))
sketch10.addConstraint(Sketcher.Constraint("DistanceX", 1, 3, -1, 1, Q("7.395 mm")))
pad6 = doc.addObject("PartDesign::Pad", "Pad005")
body.addObject(pad6)
pad6.Profile = sketch10
pad6.Length = 1.2
pad6.Reversed = True

sketch11 = doc.addObject("Sketcher::SketchObject", "Sketch010")
body.addObject(sketch11)
sketch11.AttachmentSupport = (doc.XZ_Plane, [""])
sketch11.MapMode = "FlatFace"
sketch11.AttachmentOffset = App.Placement(Vector(0, 0, -1.5), App.Rotation())
sketch11.addGeometry(Part.LineSegment(Vector(-13.48, -0.4, 0), Vector(-13.48, 1.6, 0)), False)
sketch11.addGeometry(Part.ArcOfCircle(Part.Circle(Vector(-12.48, 1.6, 0), Vector(0, 0, 1), 1), math.radians(0), math.radians(180)), False)
sketch11.addGeometry(Part.LineSegment(Vector(-11.48, 1.6, 0), Vector(-11.48, -0.4, 0)), False)
sketch11.addGeometry(Part.ArcOfCircle(Part.Circle(Vector(-12.48, -0.4, 0), Vector(0, 0, 1), 1), math.radians(180), math.radians(360)), False)
sketch11.addGeometry(Part.Circle(Vector(-12.48, 0.6, 0), Vector(0, 0, 1), 0.5), False)
sketch11.addGeometry(Part.LineSegment(Vector(-8.395, -0.4, 0), Vector(-8.395, 1.6, 0)), False)
sketch11.addGeometry(Part.ArcOfCircle(Part.Circle(Vector(-7.395, 1.6, 0), Vector(0, 0, 1), 1), math.radians(0), math.radians(180)), False)
sketch11.addGeometry(Part.LineSegment(Vector(-6.395, 1.6, 0), Vector(-6.395, -0.4, 0)), False)
sketch11.addGeometry(Part.ArcOfCircle(Part.Circle(Vector(-7.395, -0.4, 0), Vector(0, 0, 1), 1), math.radians(180), math.radians(360)), False)
sketch11.addGeometry(Part.Circle(Vector(-7.395, 0.6, 0), Vector(0, 0, 1), 0.5), False)
sketch11.addGeometry(Part.LineSegment(Vector(-3.31, -0.4, 0), Vector(-3.31, 1.6, 0)), False)
sketch11.addGeometry(Part.ArcOfCircle(Part.Circle(Vector(-2.31, 1.6, 0), Vector(0, 0, 1), 1), math.radians(0), math.radians(180)), False)
sketch11.addGeometry(Part.LineSegment(Vector(-1.31, 1.6, 0), Vector(-1.31, -0.4, 0)), False)
sketch11.addGeometry(Part.ArcOfCircle(Part.Circle(Vector(-2.31, -0.4, 0), Vector(0, 0, 1), 1), math.radians(180), math.radians(360)), False)
sketch11.addGeometry(Part.Circle(Vector(-2.31, 0.6, 0), Vector(0, 0, 1), 0.5), False)
sketch11.addGeometry(Part.LineSegment(Vector(8.855, -4.65, 0), Vector(7.155, -4.65, 0)), False)
sketch11.addGeometry(Part.ArcOfCircle(Part.Circle(Vector(7.155, -3.75, 0), Vector(0, 0, 1), 0.9), math.radians(90), math.radians(270)), False)
sketch11.addGeometry(Part.LineSegment(Vector(7.155, -2.85, 0), Vector(8.855, -2.85, 0)), False)
sketch11.addGeometry(Part.ArcOfCircle(Part.Circle(Vector(8.855, -3.75, 0), Vector(0, 0, 1), 0.9), math.radians(-90), math.radians(90)), False)
sketch11.addGeometry(Part.Circle(Vector(8.005, -3.75, 0), Vector(0, 0, 1), 0.5), False)
sketch11.addGeometry(Part.LineSegment(Vector(8.855, -2.15, 0), Vector(7.155, -2.15, 0)), False)
sketch11.addGeometry(Part.ArcOfCircle(Part.Circle(Vector(7.155, -1.25, 0), Vector(0, 0, 1), 0.9), math.radians(90), math.radians(270)), False)
sketch11.addGeometry(Part.LineSegment(Vector(7.155, -0.35, 0), Vector(8.855, -0.35, 0)), False)
sketch11.addGeometry(Part.ArcOfCircle(Part.Circle(Vector(8.855, -1.25, 0), Vector(0, 0, 1), 0.9), math.radians(-90), math.radians(90)), False)
sketch11.addGeometry(Part.Circle(Vector(8.005, -1.25, 0), Vector(0, 0, 1), 0.5), False)
sketch11.addGeometry(Part.LineSegment(Vector(8.855, 0.35, 0), Vector(7.155, 0.35, 0)), False)
sketch11.addGeometry(Part.ArcOfCircle(Part.Circle(Vector(7.155, 1.25, 0), Vector(0, 0, 1), 0.9), math.radians(90), math.radians(270)), False)
sketch11.addGeometry(Part.LineSegment(Vector(7.155, 2.15, 0), Vector(8.855, 2.15, 0)), False)
sketch11.addGeometry(Part.ArcOfCircle(Part.Circle(Vector(8.855, 1.25, 0), Vector(0, 0, 1), 0.9), math.radians(-90), math.radians(90)), False)
sketch11.addGeometry(Part.Circle(Vector(8.005, 1.25, 0), Vector(0, 0, 1), 0.5), False)
sketch11.addGeometry(Part.LineSegment(Vector(8.855, 2.85, 0), Vector(7.155, 2.85, 0)), False)
sketch11.addGeometry(Part.ArcOfCircle(Part.Circle(Vector(7.155, 3.75, 0), Vector(0, 0, 1), 0.9), math.radians(90), math.radians(270)), False)
sketch11.addGeometry(Part.LineSegment(Vector(7.155, 4.65, 0), Vector(8.855, 4.65, 0)), False)
sketch11.addGeometry(Part.ArcOfCircle(Part.Circle(Vector(8.855, 3.75, 0), Vector(0, 0, 1), 0.9), math.radians(-90), math.radians(90)), False)
sketch11.addGeometry(Part.Circle(Vector(8.005, 3.75, 0), Vector(0, 0, 1), 0.5), False)
sketch11.addConstraint(Sketcher.Constraint("Tangent", 0, 2, 1, 2))
sketch11.addConstraint(Sketcher.Constraint("Tangent", 1, 1, 2, 1))
sketch11.addConstraint(Sketcher.Constraint("Tangent", 2, 2, 3, 2))
sketch11.addConstraint(Sketcher.Constraint("Tangent", 3, 1, 0, 1))
sketch11.addConstraint(Sketcher.Constraint("Tangent", 5, 2, 6, 2))
sketch11.addConstraint(Sketcher.Constraint("Tangent", 6, 1, 7, 1))
sketch11.addConstraint(Sketcher.Constraint("Tangent", 7, 2, 8, 2))
sketch11.addConstraint(Sketcher.Constraint("Tangent", 8, 1, 5, 1))
sketch11.addConstraint(Sketcher.Constraint("Tangent", 10, 2, 11, 2))
sketch11.addConstraint(Sketcher.Constraint("Tangent", 11, 1, 12, 1))
sketch11.addConstraint(Sketcher.Constraint("Tangent", 12, 2, 13, 2))
sketch11.addConstraint(Sketcher.Constraint("Tangent", 13, 1, 10, 1))
sketch11.addConstraint(Sketcher.Constraint("Tangent", 15, 2, 16, 2))
sketch11.addConstraint(Sketcher.Constraint("Tangent", 16, 1, 17, 1))
sketch11.addConstraint(Sketcher.Constraint("Tangent", 17, 2, 18, 2))
sketch11.addConstraint(Sketcher.Constraint("Tangent", 18, 1, 15, 1))
sketch11.addConstraint(Sketcher.Constraint("Tangent", 20, 2, 21, 2))
sketch11.addConstraint(Sketcher.Constraint("Tangent", 21, 1, 22, 1))
sketch11.addConstraint(Sketcher.Constraint("Tangent", 22, 2, 23, 2))
sketch11.addConstraint(Sketcher.Constraint("Tangent", 23, 1, 20, 1))
sketch11.addConstraint(Sketcher.Constraint("Tangent", 25, 2, 26, 2))
sketch11.addConstraint(Sketcher.Constraint("Tangent", 26, 1, 27, 1))
sketch11.addConstraint(Sketcher.Constraint("Tangent", 27, 2, 28, 2))
sketch11.addConstraint(Sketcher.Constraint("Tangent", 28, 1, 25, 1))
sketch11.addConstraint(Sketcher.Constraint("Tangent", 30, 2, 31, 2))
sketch11.addConstraint(Sketcher.Constraint("Tangent", 31, 1, 32, 1))
sketch11.addConstraint(Sketcher.Constraint("Tangent", 32, 2, 33, 2))
sketch11.addConstraint(Sketcher.Constraint("Tangent", 33, 1, 30, 1))
sketch11.addConstraint(Sketcher.Constraint("Vertical", 0))
sketch11.addConstraint(Sketcher.Constraint("Vertical", 2))
sketch11.addConstraint(Sketcher.Constraint("Vertical", 5))
sketch11.addConstraint(Sketcher.Constraint("Vertical", 7))
sketch11.addConstraint(Sketcher.Constraint("Vertical", 10))
sketch11.addConstraint(Sketcher.Constraint("Vertical", 12))
sketch11.addConstraint(Sketcher.Constraint("Horizontal", 15))
sketch11.addConstraint(Sketcher.Constraint("Horizontal", 17))
sketch11.addConstraint(Sketcher.Constraint("Horizontal", 20))
sketch11.addConstraint(Sketcher.Constraint("Horizontal", 22))
sketch11.addConstraint(Sketcher.Constraint("Horizontal", 25))
sketch11.addConstraint(Sketcher.Constraint("Horizontal", 27))
sketch11.addConstraint(Sketcher.Constraint("Horizontal", 30))
sketch11.addConstraint(Sketcher.Constraint("Horizontal", 32))
sketch11.addConstraint(Sketcher.Constraint("Equal", 3, 6))
sketch11.addConstraint(Sketcher.Constraint("Equal", 4, 9))
sketch11.addConstraint(Sketcher.Constraint("Equal", 8, 11))
sketch11.addConstraint(Sketcher.Constraint("Equal", 9, 14))
sketch11.addConstraint(Sketcher.Constraint("Equal", 14, 19))
sketch11.addConstraint(Sketcher.Constraint("Equal", 18, 21))
sketch11.addConstraint(Sketcher.Constraint("Equal", 19, 24))
sketch11.addConstraint(Sketcher.Constraint("Equal", 23, 26))
sketch11.addConstraint(Sketcher.Constraint("Equal", 24, 29))
sketch11.addConstraint(Sketcher.Constraint("Equal", 28, 31))
sketch11.addConstraint(Sketcher.Constraint("Equal", 29, 34))
sketch11.addConstraint(Sketcher.Constraint("Symmetric", 21, 3, 26, 3, -1))
sketch11.addConstraint(Sketcher.Constraint("Symmetric", 24, 3, 29, 3, -1))
sketch11.addConstraint(Sketcher.Constraint("Symmetric", 16, 3, 31, 3, -1))
sketch11.addConstraint(Sketcher.Constraint("Symmetric", 19, 3, 34, 3, -1))
sketch11.addConstraint(Sketcher.Constraint("Horizontal", 1, 3, 6, 3))
sketch11.addConstraint(Sketcher.Constraint("Horizontal", 3, 3, 8, 3))
sketch11.addConstraint(Sketcher.Constraint("Horizontal", 4, 3, 9, 3))
sketch11.addConstraint(Sketcher.Constraint("Horizontal", 6, 3, 11, 3))
sketch11.addConstraint(Sketcher.Constraint("Horizontal", 8, 3, 13, 3))
sketch11.addConstraint(Sketcher.Constraint("Horizontal", 9, 3, 14, 3))
sketch11.addConstraint(Sketcher.Constraint("Horizontal", 18, 3, 19, 3))
sketch11.addConstraint(Sketcher.Constraint("Horizontal", 23, 3, 24, 3))
sketch11.addConstraint(Sketcher.Constraint("Vertical", 3, 3, 4, 3))
sketch11.addConstraint(Sketcher.Constraint("Vertical", 8, 3, 9, 3))
sketch11.addConstraint(Sketcher.Constraint("Vertical", 13, 3, 14, 3))
sketch11.addConstraint(Sketcher.Constraint("Vertical", 16, 3, 21, 3))
sketch11.addConstraint(Sketcher.Constraint("Vertical", 18, 3, 23, 3))
sketch11.addConstraint(Sketcher.Constraint("Vertical", 19, 3, 24, 3))
sketch11.addConstraint(Sketcher.Constraint("Vertical", 23, 3, 28, 3))
sketch11.addConstraint(Sketcher.Constraint("Vertical", 28, 3, 33, 3))
sketch11.addConstraint(Sketcher.Constraint("Diameter", 4, Q("1 mm")))
sketch11.addConstraint(Sketcher.Constraint("Radius", 1, Q("1 mm")))
sketch11.addConstraint(Sketcher.Constraint("Radius", 16, Q("0.9 mm")))
sketch11.addConstraint(Sketcher.Constraint("DistanceY", 0, 1, 0, 2, Q("2 mm")))
sketch11.addConstraint(Sketcher.Constraint("DistanceX", 15, 2, 15, 1, Q("1.7 mm")))
sketch11.addConstraint(Sketcher.Constraint("DistanceY", 4, 3, 1, 3, Q("1 mm")))
sketch11.addConstraint(Sketcher.Constraint("DistanceY", 16, 3, 26, 3, Q("5 mm")))
sketch11.addConstraint(Sketcher.Constraint("DistanceY", -1, 1, 1, 3, Q("1.6 mm")))
sketch11.addConstraint(Sketcher.Constraint("DistanceY", 16, 3, 21, 3, Q("2.5 mm")))
sketch11.addConstraint(Sketcher.Constraint("DistanceX", 1, 3, -1, 1, Q("12.48 mm")))
sketch11.addConstraint(Sketcher.Constraint("DistanceX", 11, 3, -1, 1, Q("2.31 mm")))
sketch11.addConstraint(Sketcher.Constraint("DistanceX", 8, 3, 16, 3, Q("14.55 mm")))
sketch11.addConstraint(Sketcher.Constraint("DistanceX", 19, 3, 18, 3, Q("0.85 mm")))
sketch11.addConstraint(Sketcher.Constraint("DistanceX", 6, 3, -1, 1, Q("7.395 mm")))
pad7 = doc.addObject("PartDesign::Pad", "Pad006")
body.addObject(pad7)
pad7.Profile = sketch11
pad7.Length = 0.2
pad7.Reversed = True

doc.recompute()
